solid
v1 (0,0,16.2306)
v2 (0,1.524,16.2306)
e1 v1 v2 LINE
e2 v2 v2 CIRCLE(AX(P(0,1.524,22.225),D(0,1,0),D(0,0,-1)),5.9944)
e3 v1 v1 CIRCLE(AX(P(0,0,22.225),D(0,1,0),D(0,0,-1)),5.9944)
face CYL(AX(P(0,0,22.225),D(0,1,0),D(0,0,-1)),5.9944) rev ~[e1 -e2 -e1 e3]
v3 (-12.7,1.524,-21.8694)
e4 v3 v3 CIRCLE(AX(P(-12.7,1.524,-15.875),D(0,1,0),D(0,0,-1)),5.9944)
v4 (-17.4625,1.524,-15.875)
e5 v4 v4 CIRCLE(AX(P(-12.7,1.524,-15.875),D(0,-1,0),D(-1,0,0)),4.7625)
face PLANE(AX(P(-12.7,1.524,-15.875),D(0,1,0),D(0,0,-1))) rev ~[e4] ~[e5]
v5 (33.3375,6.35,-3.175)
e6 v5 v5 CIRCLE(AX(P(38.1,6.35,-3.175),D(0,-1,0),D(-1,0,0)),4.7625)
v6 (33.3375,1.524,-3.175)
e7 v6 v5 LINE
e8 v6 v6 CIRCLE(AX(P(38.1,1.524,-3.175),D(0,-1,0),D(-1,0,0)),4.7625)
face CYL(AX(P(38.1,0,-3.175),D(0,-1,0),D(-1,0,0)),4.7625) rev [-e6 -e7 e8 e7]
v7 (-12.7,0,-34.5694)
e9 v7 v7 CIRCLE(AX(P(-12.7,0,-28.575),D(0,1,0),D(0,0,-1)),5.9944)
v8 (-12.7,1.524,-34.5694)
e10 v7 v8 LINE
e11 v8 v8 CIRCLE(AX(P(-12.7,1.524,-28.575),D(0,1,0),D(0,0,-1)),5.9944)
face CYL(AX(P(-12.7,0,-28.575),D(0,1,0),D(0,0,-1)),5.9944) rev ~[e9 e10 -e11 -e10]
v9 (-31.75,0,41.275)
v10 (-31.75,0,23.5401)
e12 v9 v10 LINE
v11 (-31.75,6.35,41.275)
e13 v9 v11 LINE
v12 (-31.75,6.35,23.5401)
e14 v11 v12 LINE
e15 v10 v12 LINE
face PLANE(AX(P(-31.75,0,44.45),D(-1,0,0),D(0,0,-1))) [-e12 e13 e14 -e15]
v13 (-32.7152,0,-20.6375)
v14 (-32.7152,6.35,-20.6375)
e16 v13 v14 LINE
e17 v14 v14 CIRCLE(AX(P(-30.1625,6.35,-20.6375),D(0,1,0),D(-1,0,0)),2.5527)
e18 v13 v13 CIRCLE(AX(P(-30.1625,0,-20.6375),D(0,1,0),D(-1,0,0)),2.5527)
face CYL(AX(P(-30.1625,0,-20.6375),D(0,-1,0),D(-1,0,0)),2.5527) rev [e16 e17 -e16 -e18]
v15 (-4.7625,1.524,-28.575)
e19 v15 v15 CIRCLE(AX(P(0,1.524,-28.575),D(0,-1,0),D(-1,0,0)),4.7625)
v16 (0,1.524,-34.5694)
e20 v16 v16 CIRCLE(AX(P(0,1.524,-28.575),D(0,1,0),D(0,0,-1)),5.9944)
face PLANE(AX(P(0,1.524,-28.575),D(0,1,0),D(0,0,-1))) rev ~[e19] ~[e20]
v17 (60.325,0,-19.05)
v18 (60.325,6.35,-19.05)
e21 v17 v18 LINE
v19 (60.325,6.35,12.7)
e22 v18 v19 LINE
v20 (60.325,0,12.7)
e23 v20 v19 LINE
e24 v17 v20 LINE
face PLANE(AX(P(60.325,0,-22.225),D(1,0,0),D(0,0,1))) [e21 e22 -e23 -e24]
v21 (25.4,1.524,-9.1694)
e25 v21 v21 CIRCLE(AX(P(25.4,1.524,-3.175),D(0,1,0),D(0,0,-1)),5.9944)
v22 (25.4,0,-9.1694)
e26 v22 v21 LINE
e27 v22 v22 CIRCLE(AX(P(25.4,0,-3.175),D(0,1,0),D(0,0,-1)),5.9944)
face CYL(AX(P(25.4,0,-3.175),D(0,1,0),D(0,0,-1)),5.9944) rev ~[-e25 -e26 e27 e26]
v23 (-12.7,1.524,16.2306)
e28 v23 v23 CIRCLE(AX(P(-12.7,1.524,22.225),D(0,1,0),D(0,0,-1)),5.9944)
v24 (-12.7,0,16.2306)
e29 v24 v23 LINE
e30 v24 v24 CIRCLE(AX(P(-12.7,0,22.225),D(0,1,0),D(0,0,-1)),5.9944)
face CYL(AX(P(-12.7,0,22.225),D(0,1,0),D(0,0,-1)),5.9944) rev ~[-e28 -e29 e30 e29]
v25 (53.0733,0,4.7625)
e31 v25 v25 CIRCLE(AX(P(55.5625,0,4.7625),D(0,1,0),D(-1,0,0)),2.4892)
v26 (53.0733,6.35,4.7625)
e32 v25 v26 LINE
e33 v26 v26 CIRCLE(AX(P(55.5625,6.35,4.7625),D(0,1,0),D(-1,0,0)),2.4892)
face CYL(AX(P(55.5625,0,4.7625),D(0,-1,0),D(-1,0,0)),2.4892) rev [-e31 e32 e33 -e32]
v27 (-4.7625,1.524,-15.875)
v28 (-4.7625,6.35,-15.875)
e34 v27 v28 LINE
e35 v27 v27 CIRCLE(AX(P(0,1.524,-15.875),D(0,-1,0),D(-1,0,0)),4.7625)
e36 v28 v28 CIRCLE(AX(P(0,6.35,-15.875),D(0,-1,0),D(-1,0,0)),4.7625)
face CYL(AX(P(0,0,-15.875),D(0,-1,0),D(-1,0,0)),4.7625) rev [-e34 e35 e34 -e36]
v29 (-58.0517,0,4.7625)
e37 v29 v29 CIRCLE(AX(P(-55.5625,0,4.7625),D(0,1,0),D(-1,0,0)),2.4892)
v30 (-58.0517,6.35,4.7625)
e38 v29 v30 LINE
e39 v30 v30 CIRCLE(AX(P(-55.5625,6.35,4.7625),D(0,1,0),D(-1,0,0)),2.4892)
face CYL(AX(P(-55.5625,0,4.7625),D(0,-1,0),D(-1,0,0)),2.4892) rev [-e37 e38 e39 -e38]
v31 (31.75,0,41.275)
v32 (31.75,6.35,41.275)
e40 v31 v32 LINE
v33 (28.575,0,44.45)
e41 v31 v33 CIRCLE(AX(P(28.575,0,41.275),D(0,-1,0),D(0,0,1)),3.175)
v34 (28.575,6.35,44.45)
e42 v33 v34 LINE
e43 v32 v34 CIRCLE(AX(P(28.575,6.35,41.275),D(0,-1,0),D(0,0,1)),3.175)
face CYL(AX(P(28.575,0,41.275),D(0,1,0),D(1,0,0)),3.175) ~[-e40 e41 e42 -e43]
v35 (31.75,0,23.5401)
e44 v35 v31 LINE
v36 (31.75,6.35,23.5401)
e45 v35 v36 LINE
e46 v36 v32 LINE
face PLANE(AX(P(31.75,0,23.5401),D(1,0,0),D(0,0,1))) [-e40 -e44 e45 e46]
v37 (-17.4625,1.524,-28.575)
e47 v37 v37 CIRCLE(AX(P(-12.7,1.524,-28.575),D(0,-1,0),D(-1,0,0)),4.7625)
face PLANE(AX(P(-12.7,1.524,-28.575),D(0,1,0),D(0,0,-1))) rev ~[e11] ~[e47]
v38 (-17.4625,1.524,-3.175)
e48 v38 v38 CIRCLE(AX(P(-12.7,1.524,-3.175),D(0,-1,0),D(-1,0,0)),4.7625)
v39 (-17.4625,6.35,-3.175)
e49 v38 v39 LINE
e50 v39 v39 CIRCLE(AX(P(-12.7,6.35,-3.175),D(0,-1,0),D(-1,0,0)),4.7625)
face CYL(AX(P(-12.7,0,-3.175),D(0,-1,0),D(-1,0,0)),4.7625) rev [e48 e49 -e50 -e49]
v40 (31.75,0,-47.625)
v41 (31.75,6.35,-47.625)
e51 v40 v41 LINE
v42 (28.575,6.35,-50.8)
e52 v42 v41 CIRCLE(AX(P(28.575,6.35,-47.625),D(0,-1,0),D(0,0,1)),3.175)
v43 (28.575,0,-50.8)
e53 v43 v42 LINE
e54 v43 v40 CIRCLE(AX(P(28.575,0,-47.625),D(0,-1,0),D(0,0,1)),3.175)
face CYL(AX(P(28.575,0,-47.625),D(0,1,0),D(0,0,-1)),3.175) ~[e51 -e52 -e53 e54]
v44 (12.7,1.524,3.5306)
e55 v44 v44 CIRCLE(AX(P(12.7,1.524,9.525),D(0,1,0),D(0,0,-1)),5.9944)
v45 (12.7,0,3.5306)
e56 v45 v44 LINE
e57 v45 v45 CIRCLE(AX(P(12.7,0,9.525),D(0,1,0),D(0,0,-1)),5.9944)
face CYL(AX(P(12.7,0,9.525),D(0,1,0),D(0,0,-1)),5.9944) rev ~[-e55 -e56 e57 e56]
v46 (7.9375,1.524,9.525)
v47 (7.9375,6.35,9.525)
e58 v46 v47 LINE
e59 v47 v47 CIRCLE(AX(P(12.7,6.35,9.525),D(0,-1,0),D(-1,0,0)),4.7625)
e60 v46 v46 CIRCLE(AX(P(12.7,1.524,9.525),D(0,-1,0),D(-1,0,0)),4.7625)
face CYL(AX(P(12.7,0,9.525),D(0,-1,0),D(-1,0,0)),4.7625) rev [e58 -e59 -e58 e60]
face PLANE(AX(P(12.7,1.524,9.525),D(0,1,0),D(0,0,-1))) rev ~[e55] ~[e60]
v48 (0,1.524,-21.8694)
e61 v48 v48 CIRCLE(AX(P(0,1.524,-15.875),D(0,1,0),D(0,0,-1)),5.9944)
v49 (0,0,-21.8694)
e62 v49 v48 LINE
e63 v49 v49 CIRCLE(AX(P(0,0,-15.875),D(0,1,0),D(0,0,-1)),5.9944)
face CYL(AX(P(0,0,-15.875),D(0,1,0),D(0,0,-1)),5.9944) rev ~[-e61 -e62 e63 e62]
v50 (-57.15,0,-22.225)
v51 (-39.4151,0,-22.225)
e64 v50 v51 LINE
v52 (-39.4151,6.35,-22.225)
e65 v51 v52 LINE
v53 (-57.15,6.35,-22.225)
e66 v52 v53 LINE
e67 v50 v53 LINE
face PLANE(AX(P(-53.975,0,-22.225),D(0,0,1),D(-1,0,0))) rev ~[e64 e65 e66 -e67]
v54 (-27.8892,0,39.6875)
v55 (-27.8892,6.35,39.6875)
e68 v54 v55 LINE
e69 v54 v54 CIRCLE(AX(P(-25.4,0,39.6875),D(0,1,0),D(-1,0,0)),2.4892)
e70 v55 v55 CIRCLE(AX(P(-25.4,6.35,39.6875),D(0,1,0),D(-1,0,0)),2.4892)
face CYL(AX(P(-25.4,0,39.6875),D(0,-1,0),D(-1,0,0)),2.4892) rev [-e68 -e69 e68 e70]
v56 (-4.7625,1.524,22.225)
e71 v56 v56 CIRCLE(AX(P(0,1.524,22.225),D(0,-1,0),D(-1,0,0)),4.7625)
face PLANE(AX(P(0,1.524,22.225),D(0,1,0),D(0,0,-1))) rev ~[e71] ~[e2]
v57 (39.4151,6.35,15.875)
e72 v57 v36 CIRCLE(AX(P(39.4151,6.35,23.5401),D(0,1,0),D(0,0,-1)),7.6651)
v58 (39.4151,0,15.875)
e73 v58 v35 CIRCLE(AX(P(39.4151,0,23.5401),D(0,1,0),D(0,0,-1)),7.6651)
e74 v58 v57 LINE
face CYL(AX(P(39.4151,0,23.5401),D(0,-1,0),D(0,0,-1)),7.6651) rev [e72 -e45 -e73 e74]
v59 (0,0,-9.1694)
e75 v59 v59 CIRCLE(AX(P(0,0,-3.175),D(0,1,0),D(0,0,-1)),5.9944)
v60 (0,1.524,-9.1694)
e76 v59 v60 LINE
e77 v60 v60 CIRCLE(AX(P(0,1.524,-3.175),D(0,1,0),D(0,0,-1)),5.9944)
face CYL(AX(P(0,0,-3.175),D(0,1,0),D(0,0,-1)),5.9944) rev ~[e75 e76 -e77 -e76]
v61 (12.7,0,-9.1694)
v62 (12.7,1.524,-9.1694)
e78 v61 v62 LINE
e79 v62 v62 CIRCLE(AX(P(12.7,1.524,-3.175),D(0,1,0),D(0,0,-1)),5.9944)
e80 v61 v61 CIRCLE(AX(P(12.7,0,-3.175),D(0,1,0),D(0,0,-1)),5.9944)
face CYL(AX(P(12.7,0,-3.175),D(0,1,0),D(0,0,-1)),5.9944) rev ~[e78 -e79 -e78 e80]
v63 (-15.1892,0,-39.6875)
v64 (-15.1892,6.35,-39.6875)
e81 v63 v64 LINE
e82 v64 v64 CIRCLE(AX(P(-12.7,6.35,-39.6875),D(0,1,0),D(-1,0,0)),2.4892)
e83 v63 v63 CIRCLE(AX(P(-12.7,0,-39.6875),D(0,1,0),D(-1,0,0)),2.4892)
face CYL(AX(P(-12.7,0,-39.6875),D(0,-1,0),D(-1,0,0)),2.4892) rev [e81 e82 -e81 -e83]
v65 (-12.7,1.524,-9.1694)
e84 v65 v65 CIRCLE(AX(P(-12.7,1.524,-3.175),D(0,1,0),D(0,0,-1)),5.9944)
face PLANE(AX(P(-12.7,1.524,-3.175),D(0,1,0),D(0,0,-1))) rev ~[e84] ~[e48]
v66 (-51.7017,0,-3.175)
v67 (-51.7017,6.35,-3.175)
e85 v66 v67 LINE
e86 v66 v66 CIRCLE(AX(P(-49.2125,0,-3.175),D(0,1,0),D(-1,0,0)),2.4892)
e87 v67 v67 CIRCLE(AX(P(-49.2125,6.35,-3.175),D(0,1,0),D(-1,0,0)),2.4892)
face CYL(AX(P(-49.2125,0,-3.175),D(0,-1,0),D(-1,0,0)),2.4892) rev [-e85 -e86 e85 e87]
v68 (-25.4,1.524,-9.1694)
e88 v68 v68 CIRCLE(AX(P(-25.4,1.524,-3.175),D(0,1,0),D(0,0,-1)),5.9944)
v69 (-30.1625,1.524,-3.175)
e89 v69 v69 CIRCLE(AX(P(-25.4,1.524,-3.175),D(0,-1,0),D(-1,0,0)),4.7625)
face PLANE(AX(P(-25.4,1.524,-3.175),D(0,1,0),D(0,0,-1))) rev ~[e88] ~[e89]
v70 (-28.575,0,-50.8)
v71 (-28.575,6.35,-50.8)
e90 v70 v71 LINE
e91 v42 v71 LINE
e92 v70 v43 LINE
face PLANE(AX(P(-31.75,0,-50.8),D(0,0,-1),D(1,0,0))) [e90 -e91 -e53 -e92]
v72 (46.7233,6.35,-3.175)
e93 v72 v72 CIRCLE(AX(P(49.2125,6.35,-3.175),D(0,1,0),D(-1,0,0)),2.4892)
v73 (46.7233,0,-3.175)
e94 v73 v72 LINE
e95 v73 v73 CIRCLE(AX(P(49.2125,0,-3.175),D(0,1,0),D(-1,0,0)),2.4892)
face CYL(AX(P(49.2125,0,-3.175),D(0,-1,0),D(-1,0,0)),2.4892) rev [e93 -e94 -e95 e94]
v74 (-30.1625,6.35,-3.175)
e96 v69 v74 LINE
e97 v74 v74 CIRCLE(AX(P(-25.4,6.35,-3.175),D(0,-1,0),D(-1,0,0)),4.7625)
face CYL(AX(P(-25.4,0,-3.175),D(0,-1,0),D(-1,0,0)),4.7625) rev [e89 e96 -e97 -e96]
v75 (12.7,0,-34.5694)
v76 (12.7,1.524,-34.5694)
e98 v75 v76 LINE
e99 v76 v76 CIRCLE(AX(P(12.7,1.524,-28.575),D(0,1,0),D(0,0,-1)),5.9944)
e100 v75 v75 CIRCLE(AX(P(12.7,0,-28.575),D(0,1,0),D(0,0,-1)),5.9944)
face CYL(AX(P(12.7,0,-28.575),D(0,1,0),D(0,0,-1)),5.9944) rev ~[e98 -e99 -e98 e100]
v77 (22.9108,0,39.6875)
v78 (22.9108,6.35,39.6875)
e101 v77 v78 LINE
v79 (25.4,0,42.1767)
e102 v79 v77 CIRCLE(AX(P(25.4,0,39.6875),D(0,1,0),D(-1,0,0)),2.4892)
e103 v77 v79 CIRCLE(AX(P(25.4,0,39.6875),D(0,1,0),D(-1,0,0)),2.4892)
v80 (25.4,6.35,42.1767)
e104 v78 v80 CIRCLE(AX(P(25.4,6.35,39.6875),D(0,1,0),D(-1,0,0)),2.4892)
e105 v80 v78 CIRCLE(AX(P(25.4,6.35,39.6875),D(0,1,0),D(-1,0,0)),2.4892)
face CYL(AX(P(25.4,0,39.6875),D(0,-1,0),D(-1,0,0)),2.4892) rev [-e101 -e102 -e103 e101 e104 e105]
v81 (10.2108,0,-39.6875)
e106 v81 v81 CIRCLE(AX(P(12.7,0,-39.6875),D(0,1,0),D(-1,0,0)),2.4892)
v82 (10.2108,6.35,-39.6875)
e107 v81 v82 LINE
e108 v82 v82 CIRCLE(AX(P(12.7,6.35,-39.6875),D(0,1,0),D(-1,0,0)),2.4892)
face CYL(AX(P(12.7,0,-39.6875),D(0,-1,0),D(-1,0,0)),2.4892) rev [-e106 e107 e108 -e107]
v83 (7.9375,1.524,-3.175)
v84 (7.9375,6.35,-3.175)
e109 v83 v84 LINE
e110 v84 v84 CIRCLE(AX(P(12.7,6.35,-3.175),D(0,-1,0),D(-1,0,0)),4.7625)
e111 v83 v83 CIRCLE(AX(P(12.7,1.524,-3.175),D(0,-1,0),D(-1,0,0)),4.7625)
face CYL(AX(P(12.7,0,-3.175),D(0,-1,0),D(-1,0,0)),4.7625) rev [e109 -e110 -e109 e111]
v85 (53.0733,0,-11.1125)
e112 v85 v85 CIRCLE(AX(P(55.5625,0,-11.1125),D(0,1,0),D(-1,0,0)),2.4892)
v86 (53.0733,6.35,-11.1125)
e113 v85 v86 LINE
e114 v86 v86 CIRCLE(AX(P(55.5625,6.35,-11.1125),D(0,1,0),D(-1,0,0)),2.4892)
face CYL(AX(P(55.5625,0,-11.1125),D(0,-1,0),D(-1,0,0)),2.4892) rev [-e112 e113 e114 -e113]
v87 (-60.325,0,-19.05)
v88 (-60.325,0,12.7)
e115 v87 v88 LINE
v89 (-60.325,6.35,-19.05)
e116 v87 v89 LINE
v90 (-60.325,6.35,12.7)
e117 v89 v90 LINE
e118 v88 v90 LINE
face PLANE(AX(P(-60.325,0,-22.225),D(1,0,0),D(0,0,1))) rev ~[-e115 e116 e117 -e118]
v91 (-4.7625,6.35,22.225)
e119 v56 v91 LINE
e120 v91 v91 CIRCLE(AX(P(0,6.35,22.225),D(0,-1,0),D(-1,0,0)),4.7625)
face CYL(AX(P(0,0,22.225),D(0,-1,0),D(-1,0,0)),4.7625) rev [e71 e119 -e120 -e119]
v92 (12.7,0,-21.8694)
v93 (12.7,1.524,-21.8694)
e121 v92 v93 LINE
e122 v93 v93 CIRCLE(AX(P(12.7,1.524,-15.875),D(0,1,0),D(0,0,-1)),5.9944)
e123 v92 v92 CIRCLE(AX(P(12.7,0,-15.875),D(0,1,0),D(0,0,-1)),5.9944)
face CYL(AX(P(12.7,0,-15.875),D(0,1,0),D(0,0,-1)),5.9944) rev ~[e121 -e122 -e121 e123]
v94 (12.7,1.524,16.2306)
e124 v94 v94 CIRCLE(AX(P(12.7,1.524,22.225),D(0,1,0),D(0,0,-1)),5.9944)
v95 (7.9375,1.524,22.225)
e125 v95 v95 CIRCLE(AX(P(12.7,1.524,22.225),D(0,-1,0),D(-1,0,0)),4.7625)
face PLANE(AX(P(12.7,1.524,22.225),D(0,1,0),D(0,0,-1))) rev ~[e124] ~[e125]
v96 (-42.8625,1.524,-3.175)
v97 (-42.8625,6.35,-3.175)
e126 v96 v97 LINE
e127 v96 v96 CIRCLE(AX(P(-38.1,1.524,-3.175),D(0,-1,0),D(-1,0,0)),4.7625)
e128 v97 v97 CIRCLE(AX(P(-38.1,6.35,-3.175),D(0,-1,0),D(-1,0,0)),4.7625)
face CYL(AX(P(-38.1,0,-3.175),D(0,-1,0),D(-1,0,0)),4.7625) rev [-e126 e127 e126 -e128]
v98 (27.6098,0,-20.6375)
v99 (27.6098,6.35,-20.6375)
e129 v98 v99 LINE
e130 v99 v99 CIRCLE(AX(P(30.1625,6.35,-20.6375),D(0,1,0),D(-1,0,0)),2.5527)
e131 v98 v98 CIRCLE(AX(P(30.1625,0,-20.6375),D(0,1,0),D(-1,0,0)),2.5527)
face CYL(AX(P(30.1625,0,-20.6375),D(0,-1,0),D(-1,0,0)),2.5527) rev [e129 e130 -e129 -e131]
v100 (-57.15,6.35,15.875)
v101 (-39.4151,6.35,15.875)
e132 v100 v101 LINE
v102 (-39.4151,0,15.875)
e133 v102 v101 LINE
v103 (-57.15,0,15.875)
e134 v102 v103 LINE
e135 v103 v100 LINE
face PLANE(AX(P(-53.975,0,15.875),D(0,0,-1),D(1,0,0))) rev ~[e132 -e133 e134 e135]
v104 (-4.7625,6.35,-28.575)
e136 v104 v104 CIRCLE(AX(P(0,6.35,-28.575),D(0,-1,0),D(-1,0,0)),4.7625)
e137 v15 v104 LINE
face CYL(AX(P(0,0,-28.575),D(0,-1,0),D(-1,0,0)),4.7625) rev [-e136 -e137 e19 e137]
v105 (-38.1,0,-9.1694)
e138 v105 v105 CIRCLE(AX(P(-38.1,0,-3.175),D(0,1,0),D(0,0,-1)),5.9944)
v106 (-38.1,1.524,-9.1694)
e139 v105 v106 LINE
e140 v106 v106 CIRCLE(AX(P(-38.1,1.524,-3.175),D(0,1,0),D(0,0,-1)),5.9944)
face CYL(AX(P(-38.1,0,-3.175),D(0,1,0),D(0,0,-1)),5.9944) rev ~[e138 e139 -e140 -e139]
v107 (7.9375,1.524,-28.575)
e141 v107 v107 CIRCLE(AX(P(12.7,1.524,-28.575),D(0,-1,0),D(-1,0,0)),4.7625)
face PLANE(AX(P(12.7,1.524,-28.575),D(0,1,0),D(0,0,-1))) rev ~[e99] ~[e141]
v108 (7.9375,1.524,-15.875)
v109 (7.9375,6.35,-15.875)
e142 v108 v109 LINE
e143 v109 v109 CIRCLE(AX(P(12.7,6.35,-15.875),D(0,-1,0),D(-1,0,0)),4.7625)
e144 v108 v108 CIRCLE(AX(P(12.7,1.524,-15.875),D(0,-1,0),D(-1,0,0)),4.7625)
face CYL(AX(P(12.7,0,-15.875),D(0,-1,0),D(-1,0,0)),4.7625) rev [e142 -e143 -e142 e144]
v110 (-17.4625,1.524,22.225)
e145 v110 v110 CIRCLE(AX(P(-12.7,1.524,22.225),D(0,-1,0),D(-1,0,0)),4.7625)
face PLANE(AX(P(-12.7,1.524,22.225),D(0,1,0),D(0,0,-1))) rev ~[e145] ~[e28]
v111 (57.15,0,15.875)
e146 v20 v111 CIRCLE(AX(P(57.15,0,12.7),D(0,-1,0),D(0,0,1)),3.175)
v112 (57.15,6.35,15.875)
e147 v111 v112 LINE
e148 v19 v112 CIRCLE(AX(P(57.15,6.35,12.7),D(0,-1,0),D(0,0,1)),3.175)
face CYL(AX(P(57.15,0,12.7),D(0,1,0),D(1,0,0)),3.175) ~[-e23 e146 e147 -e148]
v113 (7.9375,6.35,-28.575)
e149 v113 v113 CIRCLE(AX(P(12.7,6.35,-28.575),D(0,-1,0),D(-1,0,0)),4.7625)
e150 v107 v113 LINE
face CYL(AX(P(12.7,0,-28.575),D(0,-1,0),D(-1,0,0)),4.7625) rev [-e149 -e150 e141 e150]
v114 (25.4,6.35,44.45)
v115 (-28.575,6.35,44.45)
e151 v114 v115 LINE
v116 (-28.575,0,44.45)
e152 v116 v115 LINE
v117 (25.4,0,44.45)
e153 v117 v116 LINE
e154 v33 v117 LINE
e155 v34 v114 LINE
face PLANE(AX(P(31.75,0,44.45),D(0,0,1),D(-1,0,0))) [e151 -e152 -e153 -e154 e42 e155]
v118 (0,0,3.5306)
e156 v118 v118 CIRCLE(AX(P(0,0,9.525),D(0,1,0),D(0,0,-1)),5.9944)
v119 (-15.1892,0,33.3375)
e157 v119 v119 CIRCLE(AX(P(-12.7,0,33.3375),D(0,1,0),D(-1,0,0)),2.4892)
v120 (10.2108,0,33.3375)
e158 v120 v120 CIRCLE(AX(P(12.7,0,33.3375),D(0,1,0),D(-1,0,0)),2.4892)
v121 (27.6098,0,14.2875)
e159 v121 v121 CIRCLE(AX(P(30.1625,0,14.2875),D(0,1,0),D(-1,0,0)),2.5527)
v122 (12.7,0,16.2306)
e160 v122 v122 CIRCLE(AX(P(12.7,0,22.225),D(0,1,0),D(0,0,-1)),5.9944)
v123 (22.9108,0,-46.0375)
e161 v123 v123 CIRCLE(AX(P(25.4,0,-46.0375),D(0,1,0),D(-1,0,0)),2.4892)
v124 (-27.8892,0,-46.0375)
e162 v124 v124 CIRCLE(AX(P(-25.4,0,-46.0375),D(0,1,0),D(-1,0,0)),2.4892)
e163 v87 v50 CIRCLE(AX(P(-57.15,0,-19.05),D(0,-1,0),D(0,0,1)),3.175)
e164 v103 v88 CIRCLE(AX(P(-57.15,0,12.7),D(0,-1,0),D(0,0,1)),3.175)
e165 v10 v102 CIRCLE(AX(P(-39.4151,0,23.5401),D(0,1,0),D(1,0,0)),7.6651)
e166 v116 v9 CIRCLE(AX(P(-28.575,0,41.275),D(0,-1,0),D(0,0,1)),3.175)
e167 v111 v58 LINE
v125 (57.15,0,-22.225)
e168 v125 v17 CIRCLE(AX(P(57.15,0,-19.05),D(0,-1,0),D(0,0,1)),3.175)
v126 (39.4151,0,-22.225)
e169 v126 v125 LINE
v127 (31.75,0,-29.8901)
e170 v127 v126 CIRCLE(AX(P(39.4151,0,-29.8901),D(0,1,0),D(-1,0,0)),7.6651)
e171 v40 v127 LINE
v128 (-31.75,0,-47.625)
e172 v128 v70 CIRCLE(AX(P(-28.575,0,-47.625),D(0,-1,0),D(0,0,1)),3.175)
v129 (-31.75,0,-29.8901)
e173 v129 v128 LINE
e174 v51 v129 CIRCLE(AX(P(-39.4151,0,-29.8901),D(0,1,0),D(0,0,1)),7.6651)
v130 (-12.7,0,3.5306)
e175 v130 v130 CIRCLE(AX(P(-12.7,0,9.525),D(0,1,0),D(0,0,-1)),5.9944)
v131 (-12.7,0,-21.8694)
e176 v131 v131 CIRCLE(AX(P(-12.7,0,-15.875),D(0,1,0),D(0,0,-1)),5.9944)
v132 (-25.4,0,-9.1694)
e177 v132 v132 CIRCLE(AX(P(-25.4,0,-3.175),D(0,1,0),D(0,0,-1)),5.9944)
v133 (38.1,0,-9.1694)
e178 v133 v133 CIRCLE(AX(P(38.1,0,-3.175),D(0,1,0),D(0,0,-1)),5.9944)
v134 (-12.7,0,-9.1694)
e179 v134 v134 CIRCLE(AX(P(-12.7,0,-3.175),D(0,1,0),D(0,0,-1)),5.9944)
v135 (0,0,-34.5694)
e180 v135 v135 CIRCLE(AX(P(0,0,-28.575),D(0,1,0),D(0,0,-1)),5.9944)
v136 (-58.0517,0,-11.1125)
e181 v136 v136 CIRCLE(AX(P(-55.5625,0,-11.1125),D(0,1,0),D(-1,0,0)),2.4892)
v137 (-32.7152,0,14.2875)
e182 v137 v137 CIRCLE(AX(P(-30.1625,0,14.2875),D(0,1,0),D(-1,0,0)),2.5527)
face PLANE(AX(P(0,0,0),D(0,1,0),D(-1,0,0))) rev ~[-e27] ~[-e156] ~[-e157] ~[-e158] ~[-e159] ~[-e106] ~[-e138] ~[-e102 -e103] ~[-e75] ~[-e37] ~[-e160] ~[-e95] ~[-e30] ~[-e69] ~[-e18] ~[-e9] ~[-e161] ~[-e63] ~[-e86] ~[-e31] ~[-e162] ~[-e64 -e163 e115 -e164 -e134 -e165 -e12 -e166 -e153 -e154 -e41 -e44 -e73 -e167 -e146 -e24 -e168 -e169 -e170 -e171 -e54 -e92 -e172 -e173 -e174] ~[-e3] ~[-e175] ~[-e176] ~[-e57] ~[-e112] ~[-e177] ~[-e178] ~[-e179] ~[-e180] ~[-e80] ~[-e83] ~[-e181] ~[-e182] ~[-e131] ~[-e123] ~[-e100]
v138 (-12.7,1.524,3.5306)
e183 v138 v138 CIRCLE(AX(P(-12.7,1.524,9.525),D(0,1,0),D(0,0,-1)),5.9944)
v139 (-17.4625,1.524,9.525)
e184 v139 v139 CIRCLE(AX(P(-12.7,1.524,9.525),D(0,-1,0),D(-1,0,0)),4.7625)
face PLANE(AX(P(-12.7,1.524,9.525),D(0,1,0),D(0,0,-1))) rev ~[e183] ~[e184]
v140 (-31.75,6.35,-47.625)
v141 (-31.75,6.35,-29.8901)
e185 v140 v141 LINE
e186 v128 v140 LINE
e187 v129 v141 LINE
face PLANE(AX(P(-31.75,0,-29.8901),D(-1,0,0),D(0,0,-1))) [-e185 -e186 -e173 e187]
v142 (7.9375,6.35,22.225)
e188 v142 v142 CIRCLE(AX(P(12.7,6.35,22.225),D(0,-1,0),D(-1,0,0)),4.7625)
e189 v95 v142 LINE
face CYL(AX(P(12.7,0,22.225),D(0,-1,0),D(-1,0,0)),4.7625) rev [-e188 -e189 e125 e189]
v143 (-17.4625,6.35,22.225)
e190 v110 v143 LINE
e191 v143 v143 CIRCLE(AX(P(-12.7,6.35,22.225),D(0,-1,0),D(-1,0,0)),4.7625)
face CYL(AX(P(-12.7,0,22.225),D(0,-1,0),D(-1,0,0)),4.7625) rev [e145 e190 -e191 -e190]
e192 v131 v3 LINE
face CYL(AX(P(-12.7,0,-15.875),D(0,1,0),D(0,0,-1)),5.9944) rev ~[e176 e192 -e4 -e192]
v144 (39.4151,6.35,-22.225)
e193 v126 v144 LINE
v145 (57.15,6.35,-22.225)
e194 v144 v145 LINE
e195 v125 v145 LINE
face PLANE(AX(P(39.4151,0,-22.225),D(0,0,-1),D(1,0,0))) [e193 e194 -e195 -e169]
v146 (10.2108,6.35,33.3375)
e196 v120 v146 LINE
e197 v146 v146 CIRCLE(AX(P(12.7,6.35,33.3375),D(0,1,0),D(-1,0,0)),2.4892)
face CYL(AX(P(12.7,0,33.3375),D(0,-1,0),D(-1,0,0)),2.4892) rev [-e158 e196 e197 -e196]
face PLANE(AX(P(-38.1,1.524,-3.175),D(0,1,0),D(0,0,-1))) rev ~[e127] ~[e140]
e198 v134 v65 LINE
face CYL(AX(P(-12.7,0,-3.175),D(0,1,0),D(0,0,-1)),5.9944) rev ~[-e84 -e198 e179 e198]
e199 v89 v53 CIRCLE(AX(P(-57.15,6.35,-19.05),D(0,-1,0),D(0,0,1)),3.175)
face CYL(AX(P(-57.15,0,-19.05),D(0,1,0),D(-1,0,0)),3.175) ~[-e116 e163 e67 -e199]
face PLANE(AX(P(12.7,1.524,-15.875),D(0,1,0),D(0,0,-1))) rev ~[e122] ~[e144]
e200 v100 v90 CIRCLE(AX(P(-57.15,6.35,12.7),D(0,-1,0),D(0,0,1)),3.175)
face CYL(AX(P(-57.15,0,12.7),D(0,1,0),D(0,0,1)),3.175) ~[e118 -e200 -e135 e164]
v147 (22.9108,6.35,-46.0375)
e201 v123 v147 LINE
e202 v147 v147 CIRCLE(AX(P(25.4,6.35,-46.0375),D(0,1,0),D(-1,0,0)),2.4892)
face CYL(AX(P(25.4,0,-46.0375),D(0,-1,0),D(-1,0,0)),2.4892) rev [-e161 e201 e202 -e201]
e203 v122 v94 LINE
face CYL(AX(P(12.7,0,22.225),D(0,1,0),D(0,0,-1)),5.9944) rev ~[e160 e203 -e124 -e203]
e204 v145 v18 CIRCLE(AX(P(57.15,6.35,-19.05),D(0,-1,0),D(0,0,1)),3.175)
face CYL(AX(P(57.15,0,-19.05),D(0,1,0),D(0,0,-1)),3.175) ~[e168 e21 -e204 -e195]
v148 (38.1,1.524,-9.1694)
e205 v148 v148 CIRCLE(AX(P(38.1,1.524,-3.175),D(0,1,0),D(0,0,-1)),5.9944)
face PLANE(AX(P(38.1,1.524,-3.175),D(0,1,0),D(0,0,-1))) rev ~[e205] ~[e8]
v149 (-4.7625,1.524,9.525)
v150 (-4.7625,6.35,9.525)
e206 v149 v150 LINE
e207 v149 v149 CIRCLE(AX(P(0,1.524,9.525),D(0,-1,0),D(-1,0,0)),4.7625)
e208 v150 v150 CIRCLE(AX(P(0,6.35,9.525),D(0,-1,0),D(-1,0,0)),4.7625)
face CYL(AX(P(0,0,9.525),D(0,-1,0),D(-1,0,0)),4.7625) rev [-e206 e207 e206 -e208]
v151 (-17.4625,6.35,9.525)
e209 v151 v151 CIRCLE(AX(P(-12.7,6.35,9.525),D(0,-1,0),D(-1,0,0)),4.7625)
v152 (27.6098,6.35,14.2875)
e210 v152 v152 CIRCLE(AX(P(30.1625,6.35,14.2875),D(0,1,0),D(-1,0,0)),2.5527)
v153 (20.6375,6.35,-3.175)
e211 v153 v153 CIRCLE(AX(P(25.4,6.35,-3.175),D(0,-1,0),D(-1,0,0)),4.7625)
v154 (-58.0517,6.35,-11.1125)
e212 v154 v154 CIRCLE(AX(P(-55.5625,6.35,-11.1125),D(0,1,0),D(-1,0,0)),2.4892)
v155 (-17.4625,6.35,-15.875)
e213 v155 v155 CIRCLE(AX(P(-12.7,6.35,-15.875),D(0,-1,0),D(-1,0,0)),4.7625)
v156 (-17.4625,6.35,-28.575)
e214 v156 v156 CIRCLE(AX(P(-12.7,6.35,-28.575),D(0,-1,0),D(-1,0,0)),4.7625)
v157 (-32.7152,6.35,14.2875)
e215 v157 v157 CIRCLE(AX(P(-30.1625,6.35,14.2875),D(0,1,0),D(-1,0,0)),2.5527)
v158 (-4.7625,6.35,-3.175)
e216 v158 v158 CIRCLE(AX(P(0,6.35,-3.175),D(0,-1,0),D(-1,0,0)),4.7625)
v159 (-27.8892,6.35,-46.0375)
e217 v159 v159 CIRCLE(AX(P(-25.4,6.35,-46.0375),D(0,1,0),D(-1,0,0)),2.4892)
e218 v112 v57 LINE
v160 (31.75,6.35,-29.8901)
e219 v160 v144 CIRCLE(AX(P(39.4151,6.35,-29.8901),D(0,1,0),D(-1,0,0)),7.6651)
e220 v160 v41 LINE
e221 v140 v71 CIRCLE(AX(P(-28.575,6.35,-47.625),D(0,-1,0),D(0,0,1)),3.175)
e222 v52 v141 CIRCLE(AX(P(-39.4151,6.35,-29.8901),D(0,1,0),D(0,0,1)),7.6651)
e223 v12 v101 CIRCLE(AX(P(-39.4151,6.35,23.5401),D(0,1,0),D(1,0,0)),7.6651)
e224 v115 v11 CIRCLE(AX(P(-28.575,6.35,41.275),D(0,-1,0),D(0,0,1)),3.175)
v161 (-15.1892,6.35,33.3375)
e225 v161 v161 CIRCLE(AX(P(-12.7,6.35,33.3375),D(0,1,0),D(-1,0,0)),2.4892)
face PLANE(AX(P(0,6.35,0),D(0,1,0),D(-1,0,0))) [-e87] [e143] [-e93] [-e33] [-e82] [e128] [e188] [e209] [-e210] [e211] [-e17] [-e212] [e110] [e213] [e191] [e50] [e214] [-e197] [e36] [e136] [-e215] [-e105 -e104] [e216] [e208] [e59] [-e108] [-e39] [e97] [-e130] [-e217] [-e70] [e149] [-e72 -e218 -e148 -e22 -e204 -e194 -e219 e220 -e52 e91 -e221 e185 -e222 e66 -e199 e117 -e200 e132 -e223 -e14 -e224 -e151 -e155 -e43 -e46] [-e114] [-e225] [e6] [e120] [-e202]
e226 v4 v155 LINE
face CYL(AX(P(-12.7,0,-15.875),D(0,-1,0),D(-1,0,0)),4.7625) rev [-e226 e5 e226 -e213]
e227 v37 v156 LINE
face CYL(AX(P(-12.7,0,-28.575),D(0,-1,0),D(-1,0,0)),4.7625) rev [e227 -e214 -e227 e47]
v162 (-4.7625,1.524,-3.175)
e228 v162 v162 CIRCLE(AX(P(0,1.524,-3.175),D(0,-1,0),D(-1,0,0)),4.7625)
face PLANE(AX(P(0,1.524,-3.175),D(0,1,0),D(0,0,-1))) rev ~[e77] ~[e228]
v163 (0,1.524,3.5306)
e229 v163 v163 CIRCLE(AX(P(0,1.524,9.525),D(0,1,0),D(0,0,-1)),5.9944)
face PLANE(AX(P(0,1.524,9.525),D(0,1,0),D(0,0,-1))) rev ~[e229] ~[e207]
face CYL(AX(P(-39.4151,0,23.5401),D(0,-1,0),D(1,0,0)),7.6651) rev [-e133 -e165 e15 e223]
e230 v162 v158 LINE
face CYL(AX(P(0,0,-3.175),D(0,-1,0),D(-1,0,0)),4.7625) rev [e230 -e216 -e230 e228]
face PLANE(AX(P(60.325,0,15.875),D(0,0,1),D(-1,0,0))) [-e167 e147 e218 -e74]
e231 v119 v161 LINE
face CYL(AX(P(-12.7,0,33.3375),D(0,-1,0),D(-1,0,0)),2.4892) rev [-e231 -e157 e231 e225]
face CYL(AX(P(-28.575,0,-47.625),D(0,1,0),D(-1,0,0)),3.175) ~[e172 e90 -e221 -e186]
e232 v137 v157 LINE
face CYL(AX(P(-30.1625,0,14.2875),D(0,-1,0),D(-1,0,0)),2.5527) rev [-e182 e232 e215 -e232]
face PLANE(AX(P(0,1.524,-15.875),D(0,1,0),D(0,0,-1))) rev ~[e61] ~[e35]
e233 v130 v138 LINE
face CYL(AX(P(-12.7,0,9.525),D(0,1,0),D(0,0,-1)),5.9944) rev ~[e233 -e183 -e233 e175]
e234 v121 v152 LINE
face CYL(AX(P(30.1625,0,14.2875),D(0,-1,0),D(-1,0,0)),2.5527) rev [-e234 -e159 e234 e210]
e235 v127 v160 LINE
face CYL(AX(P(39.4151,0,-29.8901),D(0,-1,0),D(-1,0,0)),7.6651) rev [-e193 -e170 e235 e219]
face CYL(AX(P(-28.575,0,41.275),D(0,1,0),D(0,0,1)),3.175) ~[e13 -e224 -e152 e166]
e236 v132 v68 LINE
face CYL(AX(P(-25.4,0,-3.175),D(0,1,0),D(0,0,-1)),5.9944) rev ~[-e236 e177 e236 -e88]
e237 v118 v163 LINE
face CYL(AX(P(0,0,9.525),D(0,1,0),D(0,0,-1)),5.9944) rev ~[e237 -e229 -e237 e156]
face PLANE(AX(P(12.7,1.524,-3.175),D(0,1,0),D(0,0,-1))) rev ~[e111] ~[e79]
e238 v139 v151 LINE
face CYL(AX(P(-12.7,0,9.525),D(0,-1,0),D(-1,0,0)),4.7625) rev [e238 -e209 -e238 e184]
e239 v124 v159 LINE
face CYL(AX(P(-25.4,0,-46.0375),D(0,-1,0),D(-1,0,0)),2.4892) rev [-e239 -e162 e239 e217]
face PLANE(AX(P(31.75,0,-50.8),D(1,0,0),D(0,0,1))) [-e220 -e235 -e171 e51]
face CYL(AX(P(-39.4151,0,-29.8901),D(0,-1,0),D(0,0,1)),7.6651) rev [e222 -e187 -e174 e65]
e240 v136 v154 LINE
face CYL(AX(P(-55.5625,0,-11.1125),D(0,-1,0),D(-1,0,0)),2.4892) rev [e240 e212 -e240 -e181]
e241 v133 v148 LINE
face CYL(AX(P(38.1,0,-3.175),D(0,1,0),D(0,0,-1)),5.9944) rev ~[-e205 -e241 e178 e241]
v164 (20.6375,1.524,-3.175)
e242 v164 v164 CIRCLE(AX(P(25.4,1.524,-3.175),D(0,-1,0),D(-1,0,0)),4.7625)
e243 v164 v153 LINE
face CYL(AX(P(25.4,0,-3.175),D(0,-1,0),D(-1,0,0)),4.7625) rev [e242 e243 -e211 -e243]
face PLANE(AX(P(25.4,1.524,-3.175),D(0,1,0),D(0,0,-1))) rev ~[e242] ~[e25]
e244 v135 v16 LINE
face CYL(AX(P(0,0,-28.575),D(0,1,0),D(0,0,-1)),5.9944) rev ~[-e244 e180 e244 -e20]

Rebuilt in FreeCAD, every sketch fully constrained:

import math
import FreeCAD as App
import Part
import Sketcher
Q = App.Units.Quantity


def edges_at(feature, points):
    """Names of the edges that pass closest to the given points."""
    edges = feature.Shape.Edges
    near = lambda p: min(range(len(edges)), key=lambda i: edges[i].distToShape(Part.Vertex(*p))[0])
    return sorted({f"Edge{near(p) + 1}" for p in points})

doc = App.newDocument("Part")
body = doc.addObject("PartDesign::Body", "Body")

sketch1 = body.newObject("Sketcher::SketchObject", "Sketch")
sketch1.AttachmentSupport = (doc.getObject("XZ_Plane"), [""])
sketch1.MapMode = "FlatFace"
sketch1.addGeometry(Part.ArcOfCircle(Part.Circle(App.Vector(-39.4, -29.9, 0), App.Vector(0, 0, 1), 7.7), math.radians(0), math.radians(90)), False)
sketch1.addGeometry(Part.LineSegment(App.Vector(-39.4, -22.2, 0), App.Vector(-60.3, -22.2, 0)), False)
sketch1.addGeometry(Part.LineSegment(App.Vector(-60.3, -22.2, 0), App.Vector(-60.3, 15.9, 0)), False)
sketch1.addGeometry(Part.LineSegment(App.Vector(-60.3, 15.9, 0), App.Vector(-39.4, 15.9, 0)), False)
sketch1.addGeometry(Part.ArcOfCircle(Part.Circle(App.Vector(-39.4, 23.5, 0), App.Vector(0, 0, 1), 7.7), math.radians(-90), math.radians(0)), False)
sketch1.addGeometry(Part.LineSegment(App.Vector(-31.8, 23.5, 0), App.Vector(-31.8, 44.5, 0)), False)
sketch1.addGeometry(Part.LineSegment(App.Vector(-31.8, 44.5, 0), App.Vector(25.4, 44.5, 0)), False)
sketch1.addGeometry(Part.LineSegment(App.Vector(25.4, 44.5, 0), App.Vector(31.8, 44.5, 0)), False)
sketch1.addGeometry(Part.LineSegment(App.Vector(31.8, 44.5, 0), App.Vector(31.8, 23.5, 0)), False)
sketch1.addGeometry(Part.ArcOfCircle(Part.Circle(App.Vector(39.4, 23.5, 0), App.Vector(0, 0, 1), 7.7), math.radians(180), math.radians(270)), False)
sketch1.addGeometry(Part.LineSegment(App.Vector(39.4, 15.9, 0), App.Vector(60.3, 15.9, 0)), False)
sketch1.addGeometry(Part.LineSegment(App.Vector(60.3, 15.9, 0), App.Vector(60.3, -22.2, 0)), False)
sketch1.addGeometry(Part.LineSegment(App.Vector(60.3, -22.2, 0), App.Vector(39.4, -22.2, 0)), False)
sketch1.addGeometry(Part.ArcOfCircle(Part.Circle(App.Vector(39.4, -29.9, 0), App.Vector(0, 0, 1), 7.7), math.radians(90), math.radians(180)), False)
sketch1.addGeometry(Part.LineSegment(App.Vector(31.8, -29.9, 0), App.Vector(31.8, -50.8, 0)), False)
sketch1.addGeometry(Part.LineSegment(App.Vector(31.8, -50.8, 0), App.Vector(-31.8, -50.8, 0)), False)
sketch1.addGeometry(Part.LineSegment(App.Vector(-31.8, -50.8, 0), App.Vector(-31.8, -29.9, 0)), False)
sketch1.addGeometry(Part.Circle(App.Vector(-25.4, -46, 0), App.Vector(0, 0, 1), 2.5), False)
sketch1.addGeometry(Part.Circle(App.Vector(25.4, -46, 0), App.Vector(0, 0, 1), 2.5), False)
sketch1.addGeometry(Part.Circle(App.Vector(12.7, -39.7, 0), App.Vector(0, 0, 1), 2.5), False)
sketch1.addGeometry(Part.Circle(App.Vector(12.7, -28.6, 0), App.Vector(0, 0, 1), 4.8), False)
sketch1.addGeometry(Part.Circle(App.Vector(55.6, -11.1, 0), App.Vector(0, 0, 1), 2.5), False)
sketch1.addGeometry(Part.Circle(App.Vector(30.2, -20.6, 0), App.Vector(0, 0, 1), 2.6), False)
sketch1.addGeometry(Part.Circle(App.Vector(12.7, -15.9, 0), App.Vector(0, 0, 1), 4.8), False)
sketch1.addGeometry(Part.Circle(App.Vector(-12.7, -39.7, 0), App.Vector(0, 0, 1), 2.5), False)
sketch1.addGeometry(Part.Circle(App.Vector(-25.4, 39.7, 0), App.Vector(0, 0, 1), 2.5), False)
sketch1.addGeometry(Part.Circle(App.Vector(0, -28.6, 0), App.Vector(0, 0, 1), 4.8), False)
sketch1.addGeometry(Part.Circle(App.Vector(-12.7, -28.6, 0), App.Vector(0, 0, 1), 4.8), False)
sketch1.addGeometry(Part.Circle(App.Vector(0, -15.9, 0), App.Vector(0, 0, 1), 4.8), False)
sketch1.addGeometry(Part.Circle(App.Vector(-12.7, -15.9, 0), App.Vector(0, 0, 1), 4.8), False)
sketch1.addGeometry(Part.Circle(App.Vector(-30.2, -20.6, 0), App.Vector(0, 0, 1), 2.6), False)
sketch1.addGeometry(Part.Circle(App.Vector(-55.6, -11.1, 0), App.Vector(0, 0, 1), 2.5), False)
sketch1.addGeometry(Part.Circle(App.Vector(49.2, -3.2, 0), App.Vector(0, 0, 1), 2.5), False)
sketch1.addGeometry(Part.Circle(App.Vector(55.6, 4.8, 0), App.Vector(0, 0, 1), 2.5), False)
sketch1.addGeometry(Part.Circle(App.Vector(38.1, -3.2, 0), App.Vector(0, 0, 1), 4.8), False)
sketch1.addGeometry(Part.Circle(App.Vector(25.4, -3.2, 0), App.Vector(0, 0, 1), 4.8), False)
sketch1.addGeometry(Part.Circle(App.Vector(12.7, -3.2, 0), App.Vector(0, 0, 1), 4.8), False)
sketch1.addGeometry(Part.Circle(App.Vector(30.2, 14.3, 0), App.Vector(0, 0, 1), 2.6), False)
sketch1.addGeometry(Part.Circle(App.Vector(12.7, 9.5, 0), App.Vector(0, 0, 1), 4.8), False)
sketch1.addGeometry(Part.Circle(App.Vector(12.7, 22.2, 0), App.Vector(0, 0, 1), 4.8), False)
sketch1.addGeometry(Part.Circle(App.Vector(25.4, 39.7, 0), App.Vector(0, 0, 1), 2.5), False)
sketch1.addGeometry(Part.Circle(App.Vector(12.7, 33.3, 0), App.Vector(0, 0, 1), 2.5), False)
sketch1.addGeometry(Part.Circle(App.Vector(0, -3.2, 0), App.Vector(0, 0, 1), 4.8), False)
sketch1.addGeometry(Part.Circle(App.Vector(-12.7, -3.2, 0), App.Vector(0, 0, 1), 4.8), False)
sketch1.addGeometry(Part.Circle(App.Vector(-25.4, -3.2, 0), App.Vector(0, 0, 1), 4.8), False)
sketch1.addGeometry(Part.Circle(App.Vector(0, 9.5, 0), App.Vector(0, 0, 1), 4.8), False)
sketch1.addGeometry(Part.Circle(App.Vector(-12.7, 9.5, 0), App.Vector(0, 0, 1), 4.8), False)
sketch1.addGeometry(Part.Circle(App.Vector(-38.1, -3.2, 0), App.Vector(0, 0, 1), 4.8), False)
sketch1.addGeometry(Part.Circle(App.Vector(-49.2, -3.2, 0), App.Vector(0, 0, 1), 2.5), False)
sketch1.addGeometry(Part.Circle(App.Vector(-55.6, 4.8, 0), App.Vector(0, 0, 1), 2.5), False)
sketch1.addGeometry(Part.Circle(App.Vector(-30.2, 14.3, 0), App.Vector(0, 0, 1), 2.6), False)
sketch1.addGeometry(Part.Circle(App.Vector(0, 22.2, 0), App.Vector(0, 0, 1), 4.8), False)
sketch1.addGeometry(Part.Circle(App.Vector(-12.7, 22.2, 0), App.Vector(0, 0, 1), 4.8), False)
sketch1.addGeometry(Part.Circle(App.Vector(-12.7, 33.3, 0), App.Vector(0, 0, 1), 2.5), False)
sketch1.addConstraint(Sketcher.Constraint("Tangent", 0, 2, 1, 1))
sketch1.addConstraint(Sketcher.Constraint("Coincident", 1, 2, 2, 1))
sketch1.addConstraint(Sketcher.Constraint("Coincident", 2, 2, 3, 1))
sketch1.addConstraint(Sketcher.Constraint("Tangent", 3, 2, 4, 1))
sketch1.addConstraint(Sketcher.Constraint("Tangent", 4, 2, 5, 1))
sketch1.addConstraint(Sketcher.Constraint("Coincident", 5, 2, 6, 1))
sketch1.addConstraint(Sketcher.Constraint("Coincident", 6, 2, 7, 1))
sketch1.addConstraint(Sketcher.Constraint("Coincident", 7, 2, 8, 1))
sketch1.addConstraint(Sketcher.Constraint("Tangent", 8, 2, 9, 1))
sketch1.addConstraint(Sketcher.Constraint("Tangent", 9, 2, 10, 1))
sketch1.addConstraint(Sketcher.Constraint("Coincident", 10, 2, 11, 1))
sketch1.addConstraint(Sketcher.Constraint("Coincident", 11, 2, 12, 1))
sketch1.addConstraint(Sketcher.Constraint("Tangent", 12, 2, 13, 1))
sketch1.addConstraint(Sketcher.Constraint("Tangent", 13, 2, 14, 1))
sketch1.addConstraint(Sketcher.Constraint("Coincident", 14, 2, 15, 1))
sketch1.addConstraint(Sketcher.Constraint("Coincident", 15, 2, 16, 1))
sketch1.addConstraint(Sketcher.Constraint("Tangent", 16, 2, 0, 1))
sketch1.addConstraint(Sketcher.Constraint("Horizontal", 1))
sketch1.addConstraint(Sketcher.Constraint("Vertical", 2))
sketch1.addConstraint(Sketcher.Constraint("Horizontal", 3))
sketch1.addConstraint(Sketcher.Constraint("Vertical", 5))
sketch1.addConstraint(Sketcher.Constraint("Horizontal", 6))
sketch1.addConstraint(Sketcher.Constraint("Horizontal", 7))
sketch1.addConstraint(Sketcher.Constraint("Vertical", 8))
sketch1.addConstraint(Sketcher.Constraint("Horizontal", 10))
sketch1.addConstraint(Sketcher.Constraint("Vertical", 11))
sketch1.addConstraint(Sketcher.Constraint("Horizontal", 12))
sketch1.addConstraint(Sketcher.Constraint("Vertical", 14))
sketch1.addConstraint(Sketcher.Constraint("Horizontal", 15))
sketch1.addConstraint(Sketcher.Constraint("Vertical", 16))
sketch1.addConstraint(Sketcher.Constraint("Equal", 0, 4))
sketch1.addConstraint(Sketcher.Constraint("Equal", 4, 9))
sketch1.addConstraint(Sketcher.Constraint("Equal", 9, 13))
sketch1.addConstraint(Sketcher.Constraint("Equal", 17, 18))
sketch1.addConstraint(Sketcher.Constraint("Equal", 18, 19))
sketch1.addConstraint(Sketcher.Constraint("Equal", 19, 21))
sketch1.addConstraint(Sketcher.Constraint("Equal", 20, 23))
sketch1.addConstraint(Sketcher.Constraint("Equal", 21, 24))
sketch1.addConstraint(Sketcher.Constraint("Equal", 24, 25))
sketch1.addConstraint(Sketcher.Constraint("Equal", 23, 26))
sketch1.addConstraint(Sketcher.Constraint("Equal", 26, 27))
sketch1.addConstraint(Sketcher.Constraint("Equal", 27, 28))
sketch1.addConstraint(Sketcher.Constraint("Equal", 28, 29))
sketch1.addConstraint(Sketcher.Constraint("Equal", 22, 30))
sketch1.addConstraint(Sketcher.Constraint("Equal", 25, 31))
sketch1.addConstraint(Sketcher.Constraint("Equal", 31, 32))
sketch1.addConstraint(Sketcher.Constraint("Equal", 32, 33))
sketch1.addConstraint(Sketcher.Constraint("Equal", 29, 34))
sketch1.addConstraint(Sketcher.Constraint("Equal", 34, 35))
sketch1.addConstraint(Sketcher.Constraint("Equal", 35, 36))
sketch1.addConstraint(Sketcher.Constraint("Equal", 30, 37))
sketch1.addConstraint(Sketcher.Constraint("Equal", 36, 38))
sketch1.addConstraint(Sketcher.Constraint("Equal", 38, 39))
sketch1.addConstraint(Sketcher.Constraint("Equal", 33, 40))
sketch1.addConstraint(Sketcher.Constraint("Equal", 40, 41))
sketch1.addConstraint(Sketcher.Constraint("Equal", 39, 42))
sketch1.addConstraint(Sketcher.Constraint("Equal", 42, 43))
sketch1.addConstraint(Sketcher.Constraint("Equal", 43, 44))
sketch1.addConstraint(Sketcher.Constraint("Equal", 44, 45))
sketch1.addConstraint(Sketcher.Constraint("Equal", 45, 46))
sketch1.addConstraint(Sketcher.Constraint("Equal", 46, 47))
sketch1.addConstraint(Sketcher.Constraint("Equal", 41, 48))
sketch1.addConstraint(Sketcher.Constraint("Equal", 48, 49))
sketch1.addConstraint(Sketcher.Constraint("Equal", 37, 50))
sketch1.addConstraint(Sketcher.Constraint("Equal", 47, 51))
sketch1.addConstraint(Sketcher.Constraint("Equal", 51, 52))
sketch1.addConstraint(Sketcher.Constraint("Equal", 49, 53))
sketch1.addConstraint(Sketcher.Constraint("Symmetric", 4, 3, 9, 3, -2))
sketch1.addConstraint(Sketcher.Constraint("Symmetric", 0, 3, 13, 3, -2))
sketch1.addConstraint(Sketcher.Constraint("Symmetric", 17, 3, 18, 3, -2))
sketch1.addConstraint(Sketcher.Constraint("Symmetric", 19, 3, 24, 3, -2))
sketch1.addConstraint(Sketcher.Constraint("Symmetric", 20, 3, 27, 3, -2))
sketch1.addConstraint(Sketcher.Constraint("Symmetric", 23, 3, 29, 3, -2))
sketch1.addConstraint(Sketcher.Constraint("Symmetric", 22, 3, 30, 3, -2))
sketch1.addConstraint(Sketcher.Constraint("Symmetric", 21, 3, 31, 3, -2))
sketch1.addConstraint(Sketcher.Constraint("Symmetric", 25, 3, 40, 3, -2))
sketch1.addConstraint(Sketcher.Constraint("Symmetric", 36, 3, 43, 3, -2))
sketch1.addConstraint(Sketcher.Constraint("Symmetric", 35, 3, 44, 3, -2))
sketch1.addConstraint(Sketcher.Constraint("Symmetric", 38, 3, 46, 3, -2))
sketch1.addConstraint(Sketcher.Constraint("Symmetric", 34, 3, 47, 3, -2))
sketch1.addConstraint(Sketcher.Constraint("Symmetric", 32, 3, 48, 3, -2))
sketch1.addConstraint(Sketcher.Constraint("Symmetric", 33, 3, 49, 3, -2))
sketch1.addConstraint(Sketcher.Constraint("Symmetric", 37, 3, 50, 3, -2))
sketch1.addConstraint(Sketcher.Constraint("Symmetric", 39, 3, 52, 3, -2))
sketch1.addConstraint(Sketcher.Constraint("Symmetric", 41, 3, 53, 3, -2))
sketch1.addConstraint(Sketcher.Constraint("PointOnObject", 26, 3, -2))
sketch1.addConstraint(Sketcher.Constraint("PointOnObject", 28, 3, -2))
sketch1.addConstraint(Sketcher.Constraint("PointOnObject", 42, 3, -2))
sketch1.addConstraint(Sketcher.Constraint("PointOnObject", 45, 3, -2))
sketch1.addConstraint(Sketcher.Constraint("PointOnObject", 51, 3, -2))
sketch1.addConstraint(Sketcher.Constraint("Horizontal", 20, 3, 26, 3))
sketch1.addConstraint(Sketcher.Constraint("Horizontal", 23, 3, 28, 3))
sketch1.addConstraint(Sketcher.Constraint("Horizontal", 32, 3, 34, 3))
sketch1.addConstraint(Sketcher.Constraint("Horizontal", 34, 3, 35, 3))
sketch1.addConstraint(Sketcher.Constraint("Horizontal", 35, 3, 36, 3))
sketch1.addConstraint(Sketcher.Constraint("Horizontal", 36, 3, 42, 3))
sketch1.addConstraint(Sketcher.Constraint("Horizontal", 38, 3, 45, 3))
sketch1.addConstraint(Sketcher.Constraint("Horizontal", 39, 3, 51, 3))
sketch1.addConstraint(Sketcher.Constraint("Vertical", 0, 3, 4, 3))
sketch1.addConstraint(Sketcher.Constraint("Vertical", 19, 3, 20, 3))
sketch1.addConstraint(Sketcher.Constraint("Vertical", 20, 3, 23, 3))
sketch1.addConstraint(Sketcher.Constraint("Vertical", 17, 3, 25, 3))
sketch1.addConstraint(Sketcher.Constraint("Vertical", 21, 3, 33, 3))
sketch1.addConstraint(Sketcher.Constraint("Vertical", 18, 3, 35, 3))
sketch1.addConstraint(Sketcher.Constraint("Vertical", 23, 3, 36, 3))
sketch1.addConstraint(Sketcher.Constraint("Vertical", 22, 3, 37, 3))
sketch1.addConstraint(Sketcher.Constraint("Vertical", 36, 3, 38, 3))
sketch1.addConstraint(Sketcher.Constraint("Vertical", 38, 3, 39, 3))
sketch1.addConstraint(Sketcher.Constraint("Vertical", 39, 3, 41, 3))
sketch1.addConstraint(Sketcher.Constraint("Vertical", 40, 3, 6, 2))
sketch1.addConstraint(Sketcher.Constraint("Equal", 3, 10))
sketch1.addConstraint(Sketcher.Constraint("Equal", 12, 5))
sketch1.addConstraint(Sketcher.Constraint("Equal", 8, 14))
sketch1.addConstraint(Sketcher.Constraint("Diameter", 17, Q("0.196 in")))
sketch1.addConstraint(Sketcher.Constraint("Diameter", 20, Q("0.375 in")))
sketch1.addConstraint(Sketcher.Constraint("Diameter", 22, Q("0.201 in")))
sketch1.addConstraint(Sketcher.Constraint("DistanceX", 17, 3, -1, 1, Q("1 in")))
sketch1.addConstraint(Sketcher.Constraint("DistanceY", 14, 2, -1, 1, Q("2 in")))
sketch1.addConstraint(Sketcher.Constraint("DistanceY", 18, 3, 22, 3, Q("1 in")))
sketch1.addConstraint(Sketcher.Constraint("DistanceX", 22, 3, 21, 3, Q("1 in")))
sketch1.addConstraint(Sketcher.Constraint("DistanceX", 24, 3, 19, 3, Q("1 in")))
sketch1.addConstraint(Sketcher.Constraint("DistanceY", 22, 3, 33, 3, Q("1 in")))
sketch1.addConstraint(Sketcher.Constraint("DistanceY", 20, 3, 35, 3, Q("1 in")))
sketch1.addConstraint(Sketcher.Constraint("DistanceY", 23, 3, 38, 3, Q("1 in")))
sketch1.addConstraint(Sketcher.Constraint("DistanceY", 36, 3, 39, 3, Q("1 in")))
sketch1.addConstraint(Sketcher.Constraint("DistanceY", 37, 3, 40, 3, Q("1 in")))
sketch1.addConstraint(Sketcher.Constraint("DistanceX", 47, 3, 43, 3, Q("1 in")))
sketch1.addConstraint(Sketcher.Constraint("DistanceX", 7, 1, 7, 2, Q("0.25 in")))
sketch1.addConstraint(Sketcher.Constraint("DistanceY", 20, 3, 23, 3, Q("0.5 in")))
sketch1.addConstraint(Sketcher.Constraint("Radius", 0, 7.665))
sketch1.addConstraint(Sketcher.Constraint("DistanceY", 18, 3, 19, 3, Q("0.25 in")))
sketch1.addConstraint(Sketcher.Constraint("DistanceX", 32, 3, 21, 3, Q("0.25 in")))
sketch1.addConstraint(Sketcher.Constraint("DistanceY", 41, 3, 40, 3, Q("0.25 in")))
sketch1.addConstraint(Sketcher.Constraint("DistanceY", 2, 1, 2, 2, Q("1.5 in")))
sketch1.addConstraint(Sketcher.Constraint("DistanceY", 32, 3, -1, 1, Q("0.125 in")))
sketch1.addConstraint(Sketcher.Constraint("DistanceY", -1, 1, 33, 3, Q("0.1875 in")))
sketch1.addConstraint(Sketcher.Constraint("DistanceX", 1, 2, -1, 1, Q("2.375 in")))
sketch1.addConstraint(Sketcher.Constraint("DistanceX", 18, 3, 22, 3, Q("0.1875 in")))
sketch1.addConstraint(Sketcher.Constraint("DistanceY", 22, 3, 21, 3, Q("0.375 in")))
sketch1.addConstraint(Sketcher.Constraint("DistanceY", 38, 3, 37, 3, Q("0.1875 in")))
pad1 = body.newObject("PartDesign::Pad", "Pad")
pad1.Profile = sketch1
pad1.Length = Q("0.25 in")
pad1.Reversed = True

sketch2 = body.newObject("Sketcher::SketchObject", "Sketch001")
sketch2.AttachmentSupport = (doc.getObject("XZ_Plane"), [""])
sketch2.MapMode = "FlatFace"
sketch2.addGeometry(Part.Circle(App.Vector(38.1, -3.2, 0), App.Vector(0, 0, 1), 4.8), False)
sketch2.addGeometry(Part.Circle(App.Vector(25.4, -3.2, 0), App.Vector(0, 0, 1), 4.8), False)
sketch2.addGeometry(Part.Circle(App.Vector(12.7, -28.6, 0), App.Vector(0, 0, 1), 4.8), False)
sketch2.addGeometry(Part.Circle(App.Vector(12.7, -15.9, 0), App.Vector(0, 0, 1), 4.8), False)
sketch2.addGeometry(Part.Circle(App.Vector(12.7, -3.2, 0), App.Vector(0, 0, 1), 4.8), False)
sketch2.addGeometry(Part.Circle(App.Vector(12.7, 9.5, 0), App.Vector(0, 0, 1), 4.8), False)
sketch2.addGeometry(Part.Circle(App.Vector(12.7, 22.2, 0), App.Vector(0, 0, 1), 4.8), False)
sketch2.addGeometry(Part.Circle(App.Vector(0, 22.2, 0), App.Vector(0, 0, 1), 4.8), False)
sketch2.addGeometry(Part.Circle(App.Vector(-12.7, 22.2, 0), App.Vector(0, 0, 1), 4.8), False)
sketch2.addGeometry(Part.Circle(App.Vector(-25.4, -3.2, 0), App.Vector(0, 0, 1), 4.8), False)
sketch2.addGeometry(Part.Circle(App.Vector(-38.1, -3.2, 0), App.Vector(0, 0, 1), 4.8), False)
sketch2.addGeometry(Part.Circle(App.Vector(-12.7, 9.5, 0), App.Vector(0, 0, 1), 4.8), False)
sketch2.addGeometry(Part.Circle(App.Vector(0, 9.5, 0), App.Vector(0, 0, 1), 4.8), False)
sketch2.addGeometry(Part.Circle(App.Vector(0, -28.6, 0), App.Vector(0, 0, 1), 4.8), False)
sketch2.addGeometry(Part.Circle(App.Vector(-12.7, -28.6, 0), App.Vector(0, 0, 1), 4.8), False)
sketch2.addGeometry(Part.Circle(App.Vector(0, -15.9, 0), App.Vector(0, 0, 1), 4.8), False)
sketch2.addGeometry(Part.Circle(App.Vector(-12.7, -15.9, 0), App.Vector(0, 0, 1), 4.8), False)
sketch2.addGeometry(Part.Circle(App.Vector(0, -3.2, 0), App.Vector(0, 0, 1), 4.8), False)
sketch2.addGeometry(Part.Circle(App.Vector(-12.7, -3.2, 0), App.Vector(0, 0, 1), 4.8), False)
sketch2.addConstraint(Sketcher.Constraint("Equal", 0, 1))
sketch2.addConstraint(Sketcher.Constraint("Equal", 1, 2))
sketch2.addConstraint(Sketcher.Constraint("Equal", 2, 3))
sketch2.addConstraint(Sketcher.Constraint("Equal", 3, 4))
sketch2.addConstraint(Sketcher.Constraint("Equal", 4, 5))
sketch2.addConstraint(Sketcher.Constraint("Equal", 5, 6))
sketch2.addConstraint(Sketcher.Constraint("Equal", 6, 7))
sketch2.addConstraint(Sketcher.Constraint("Equal", 7, 8))
sketch2.addConstraint(Sketcher.Constraint("Equal", 8, 9))
sketch2.addConstraint(Sketcher.Constraint("Equal", 9, 10))
sketch2.addConstraint(Sketcher.Constraint("Equal", 10, 11))
sketch2.addConstraint(Sketcher.Constraint("Equal", 11, 12))
sketch2.addConstraint(Sketcher.Constraint("Equal", 12, 13))
sketch2.addConstraint(Sketcher.Constraint("Equal", 13, 14))
sketch2.addConstraint(Sketcher.Constraint("Equal", 14, 15))
sketch2.addConstraint(Sketcher.Constraint("Equal", 15, 16))
sketch2.addConstraint(Sketcher.Constraint("Equal", 16, 17))
sketch2.addConstraint(Sketcher.Constraint("Equal", 17, 18))
sketch2.addConstraint(Sketcher.Constraint("Symmetric", 6, 3, 8, 3, -2))
sketch2.addConstraint(Sketcher.Constraint("Symmetric", 1, 3, 9, 3, -2))
sketch2.addConstraint(Sketcher.Constraint("Symmetric", 0, 3, 10, 3, -2))
sketch2.addConstraint(Sketcher.Constraint("Symmetric", 5, 3, 11, 3, -2))
sketch2.addConstraint(Sketcher.Constraint("Symmetric", 2, 3, 14, 3, -2))
sketch2.addConstraint(Sketcher.Constraint("Symmetric", 3, 3, 16, 3, -2))
sketch2.addConstraint(Sketcher.Constraint("Symmetric", 4, 3, 18, 3, -2))
sketch2.addConstraint(Sketcher.Constraint("PointOnObject", 7, 3, -2))
sketch2.addConstraint(Sketcher.Constraint("PointOnObject", 12, 3, -2))
sketch2.addConstraint(Sketcher.Constraint("PointOnObject", 13, 3, -2))
sketch2.addConstraint(Sketcher.Constraint("PointOnObject", 15, 3, -2))
sketch2.addConstraint(Sketcher.Constraint("PointOnObject", 17, 3, -2))
sketch2.addConstraint(Sketcher.Constraint("Horizontal", 0, 3, 1, 3))
sketch2.addConstraint(Sketcher.Constraint("Horizontal", 1, 3, 4, 3))
sketch2.addConstraint(Sketcher.Constraint("Horizontal", 6, 3, 7, 3))
sketch2.addConstraint(Sketcher.Constraint("Horizontal", 11, 3, 12, 3))
sketch2.addConstraint(Sketcher.Constraint("Horizontal", 2, 3, 13, 3))
sketch2.addConstraint(Sketcher.Constraint("Horizontal", 3, 3, 15, 3))
sketch2.addConstraint(Sketcher.Constraint("Horizontal", 10, 3, 17, 3))
sketch2.addConstraint(Sketcher.Constraint("Vertical", 2, 3, 3, 3))
sketch2.addConstraint(Sketcher.Constraint("Vertical", 3, 3, 4, 3))
sketch2.addConstraint(Sketcher.Constraint("Vertical", 4, 3, 5, 3))
sketch2.addConstraint(Sketcher.Constraint("Vertical", 5, 3, 6, 3))
sketch2.addConstraint(Sketcher.Constraint("Diameter", 0, Q("0.375 in")))
sketch2.addConstraint(Sketcher.Constraint("DistanceX", -1, 1, 1, 3, Q("1 in")))
sketch2.addConstraint(Sketcher.Constraint("DistanceY", 2, 3, 1, 3, Q("1 in")))
sketch2.addConstraint(Sketcher.Constraint("DistanceX", 2, 3, 0, 3, Q("1 in")))
sketch2.addConstraint(Sketcher.Constraint("DistanceY", 3, 3, 5, 3, Q("1 in")))
sketch2.addConstraint(Sketcher.Constraint("DistanceY", 4, 3, 6, 3, Q("1 in")))
sketch2.addConstraint(Sketcher.Constraint("DistanceX", 8, 3, 6, 3, Q("1 in")))
sketch2.addConstraint(Sketcher.Constraint("DistanceY", 2, 3, 3, 3, Q("0.5 in")))
sketch2.addConstraint(Sketcher.Constraint("DistanceY", 0, 3, -1, 1, Q("0.125 in")))
doc.recompute()
hole = body.newObject("PartDesign::Hole", "Hole")
hole.Profile = sketch2
hole.ThreadType = "None"
hole.Diameter = Q("0.375 in")
hole.DepthType = "Dimension"
hole.Depth = Q("0.375 in")
hole.DrillPoint = "Flat"
hole.HoleCutType = "Counterbore"
hole.HoleCutDiameter = Q("0.472 in")
hole.HoleCutDepth = Q("0.06 in")
doc.recompute()

fillet = body.newObject("PartDesign::Fillet", "Fillet")
fillet.Base = (hole, edges_at(hole, [
    (-31.75, 3.175, 44.45),
    (60.325, 3.175, 15.875),
    (31.75, 3.175, 44.45),
    (60.325, 3.175, -22.225),
    (-31.75, 3.175, -50.8),
    (31.75, 3.175, -50.8),
    (-60.325, 3.175, 15.875),
    (-60.325, 3.175, -22.225),
]))
fillet.Radius = Q("0.125 in")

doc.recompute()
